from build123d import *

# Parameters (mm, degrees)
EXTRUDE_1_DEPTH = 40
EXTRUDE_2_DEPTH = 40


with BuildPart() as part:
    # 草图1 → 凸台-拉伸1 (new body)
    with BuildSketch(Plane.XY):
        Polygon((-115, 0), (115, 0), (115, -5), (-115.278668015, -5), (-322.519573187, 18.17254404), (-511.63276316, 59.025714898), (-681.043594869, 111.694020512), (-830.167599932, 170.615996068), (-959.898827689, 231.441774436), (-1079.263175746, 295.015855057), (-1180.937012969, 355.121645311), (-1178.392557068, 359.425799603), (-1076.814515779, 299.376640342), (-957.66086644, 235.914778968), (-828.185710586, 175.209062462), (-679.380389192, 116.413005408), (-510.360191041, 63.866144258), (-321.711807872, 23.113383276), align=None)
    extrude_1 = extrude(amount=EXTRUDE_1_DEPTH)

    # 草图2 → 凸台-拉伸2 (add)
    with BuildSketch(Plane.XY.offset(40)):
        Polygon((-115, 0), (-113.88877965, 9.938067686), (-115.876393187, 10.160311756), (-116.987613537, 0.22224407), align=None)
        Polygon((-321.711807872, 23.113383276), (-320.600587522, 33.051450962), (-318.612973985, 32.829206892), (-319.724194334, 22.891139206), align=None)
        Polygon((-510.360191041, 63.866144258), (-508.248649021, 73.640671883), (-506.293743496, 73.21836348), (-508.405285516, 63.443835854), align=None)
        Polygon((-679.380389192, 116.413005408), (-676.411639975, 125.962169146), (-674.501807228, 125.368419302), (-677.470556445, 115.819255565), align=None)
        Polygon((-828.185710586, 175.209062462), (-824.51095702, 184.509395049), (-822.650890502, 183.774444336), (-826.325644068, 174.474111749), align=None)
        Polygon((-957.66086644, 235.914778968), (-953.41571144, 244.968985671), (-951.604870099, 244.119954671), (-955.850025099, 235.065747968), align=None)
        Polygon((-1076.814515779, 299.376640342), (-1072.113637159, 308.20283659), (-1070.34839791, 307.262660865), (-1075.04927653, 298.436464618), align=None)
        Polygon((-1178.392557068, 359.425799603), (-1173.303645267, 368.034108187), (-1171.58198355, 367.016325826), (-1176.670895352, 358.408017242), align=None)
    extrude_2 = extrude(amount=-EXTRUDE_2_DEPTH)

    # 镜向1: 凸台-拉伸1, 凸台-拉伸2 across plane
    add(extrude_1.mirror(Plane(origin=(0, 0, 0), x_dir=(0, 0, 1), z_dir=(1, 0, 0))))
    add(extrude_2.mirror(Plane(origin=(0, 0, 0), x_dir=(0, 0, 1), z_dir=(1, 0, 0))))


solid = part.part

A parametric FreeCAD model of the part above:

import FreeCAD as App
import Part
import Sketcher
from FreeCAD import Vector
Q = App.Units.Quantity

doc = App.newDocument("Part")
params = doc.addObject("Spreadsheet::Sheet", "Params")
for row, (alias, value) in enumerate([
    ("sketch1_width", "230 mm"),
    ("sketch1_height", "5 mm"),
    ("sketch1_length", "208 mm"),
    ("sketch1_length2", "193 mm"),
    ("sketch1_length3", "177 mm"),
    ("pad1_length", "40 mm"),
    ("sketch2_length", "10 mm"),
    ("sketch2_length2", "2 mm"),
    ("pad2_length", "40 mm"),
], start=1):
    params.set(f"A{row}", alias)
    params.set(f"B{row}", "=" + value)
    params.setAlias(f"B{row}", alias)

body = doc.addObject("PartDesign::Body", "Body")

# Sketch on XY plane
sketch1 = body.newObject("Sketcher::SketchObject", "Sketch")
sketch1.AttachmentSupport = (doc.getObject("XY_Plane"), [""])
sketch1.MapMode = "FlatFace"
sketch1.addGeometry(Part.LineSegment(Vector(115, 0, 0), Vector(-115, 0, 0)), False)
sketch1.addGeometry(Part.LineSegment(Vector(-115, 0, 0), Vector(-322, 23, 0)), False)
sketch1.addGeometry(Part.LineSegment(Vector(-322, 23, 0), Vector(-510, 64, 0)), False)
sketch1.addGeometry(Part.LineSegment(Vector(-510, 64, 0), Vector(-679, 116, 0)), False)
sketch1.addGeometry(Part.LineSegment(Vector(-679, 116, 0), Vector(-828, 175, 0)), False)
sketch1.addGeometry(Part.LineSegment(Vector(-828, 175, 0), Vector(-958, 236, 0)), False)
sketch1.addGeometry(Part.LineSegment(Vector(-958, 236, 0), Vector(-1077, 299, 0)), False)
sketch1.addGeometry(Part.LineSegment(Vector(-1077, 299, 0), Vector(-1178, 359, 0)), False)
sketch1.addGeometry(Part.LineSegment(Vector(-1178, 359, 0), Vector(-1181, 355, 0)), False)
sketch1.addGeometry(Part.LineSegment(Vector(-1181, 355, 0), Vector(-1079, 295, 0)), False)
sketch1.addGeometry(Part.LineSegment(Vector(-1079, 295, 0), Vector(-960, 231, 0)), False)
sketch1.addGeometry(Part.LineSegment(Vector(-960, 231, 0), Vector(-830, 171, 0)), False)
sketch1.addGeometry(Part.LineSegment(Vector(-830, 171, 0), Vector(-681, 112, 0)), False)
sketch1.addGeometry(Part.LineSegment(Vector(-681, 112, 0), Vector(-512, 59, 0)), False)
sketch1.addGeometry(Part.LineSegment(Vector(-512, 59, 0), Vector(-323, 18, 0)), False)
sketch1.addGeometry(Part.LineSegment(Vector(-323, 18, 0), Vector(-115, -5, 0)), False)
sketch1.addGeometry(Part.LineSegment(Vector(-115, -5, 0), Vector(115, -5, 0)), False)
sketch1.addGeometry(Part.LineSegment(Vector(115, -5, 0), Vector(115, 0, 0)), False)
sketch1.addConstraint(Sketcher.Constraint("Coincident", 0, 2, 1, 1))
sketch1.addConstraint(Sketcher.Constraint("Coincident", 1, 2, 2, 1))
sketch1.addConstraint(Sketcher.Constraint("Coincident", 2, 2, 3, 1))
sketch1.addConstraint(Sketcher.Constraint("Coincident", 3, 2, 4, 1))
sketch1.addConstraint(Sketcher.Constraint("Coincident", 4, 2, 5, 1))
sketch1.addConstraint(Sketcher.Constraint("Coincident", 5, 2, 6, 1))
sketch1.addConstraint(Sketcher.Constraint("Coincident", 6, 2, 7, 1))
sketch1.addConstraint(Sketcher.Constraint("Coincident", 7, 2, 8, 1))
sketch1.addConstraint(Sketcher.Constraint("Coincident", 8, 2, 9, 1))
sketch1.addConstraint(Sketcher.Constraint("Coincident", 9, 2, 10, 1))
sketch1.addConstraint(Sketcher.Constraint("Coincident", 10, 2, 11, 1))
sketch1.addConstraint(Sketcher.Constraint("Coincident", 11, 2, 12, 1))
sketch1.addConstraint(Sketcher.Constraint("Coincident", 12, 2, 13, 1))
sketch1.addConstraint(Sketcher.Constraint("Coincident", 13, 2, 14, 1))
sketch1.addConstraint(Sketcher.Constraint("Coincident", 14, 2, 15, 1))
sketch1.addConstraint(Sketcher.Constraint("Coincident", 15, 2, 16, 1))
sketch1.addConstraint(Sketcher.Constraint("Coincident", 16, 2, 17, 1))
sketch1.addConstraint(Sketcher.Constraint("Coincident", 17, 2, 0, 1))
sketch1.addConstraint(Sketcher.Constraint("Horizontal", 0))
sketch1.addConstraint(Sketcher.Constraint("Horizontal", 16))
sketch1.addConstraint(Sketcher.Constraint("Vertical", 17))
sketch1.addConstraint(Sketcher.Constraint("Symmetric", 0, 2, 17, 2, -1, 1))
sketch1.addConstraint(Sketcher.Constraint("Perpendicular", 7, 8))
sketch1.addConstraint(Sketcher.Constraint("Perpendicular", 8, 9))
sketch1.addConstraint(Sketcher.Constraint("Parallel", 6, 10))
sketch1.addConstraint(Sketcher.Constraint("Parallel", 5, 11))
sketch1.addConstraint(Sketcher.Constraint("Parallel", 4, 12))
sketch1.addConstraint(Sketcher.Constraint("Parallel", 3, 13))
sketch1.addConstraint(Sketcher.Constraint("Parallel", 2, 14))
sketch1.addConstraint(Sketcher.Constraint("Parallel", 1, 15))
sketch1.addConstraint(Sketcher.Constraint("DistanceX", 0, 2, 0, 1, 230.0))
sketch1.addConstraint(Sketcher.Constraint("DistanceY", 17, 1, 17, 2, 5.0))
sketch1.addConstraint(Sketcher.Constraint("Distance", 1, 208.0))
sketch1.addConstraint(Sketcher.Constraint("Distance", 2, 193.0))
sketch1.addConstraint(Sketcher.Constraint("Distance", 3, 177.0))
sketch1.addConstraint(Sketcher.Constraint("Distance", 4, 160.0))
sketch1.addConstraint(Sketcher.Constraint("Distance", 5, 143.0))
sketch1.addConstraint(Sketcher.Constraint("Distance", 6, 135.0))
sketch1.addConstraint(Sketcher.Constraint("Distance", 7, 118.0))
sketch1.addConstraint(Sketcher.Constraint("Distance", 8, 5.0))
sketch1.addConstraint(Sketcher.Constraint("Angle", 1, Q("173.62 deg")))
sketch1.addConstraint(Sketcher.Constraint("Angle", 2, Q("167.81 deg")))
sketch1.addConstraint(Sketcher.Constraint("Angle", 3, Q("162.73 deg")))
sketch1.addConstraint(Sketcher.Constraint("Angle", 4, Q("158.44 deg")))
sketch1.addConstraint(Sketcher.Constraint("Angle", 5, Q("154.88 deg")))
sketch1.addConstraint(Sketcher.Constraint("Angle", 6, Q("151.96 deg")))
sketch1.addConstraint(Sketcher.Constraint("Angle", 7, Q("149.41 deg")))
sketch1.addConstraint(Sketcher.Constraint("DistanceX", 16, 1, 16, 2, 230.278668))
sketch1.addConstraint(Sketcher.Constraint("DistanceX", 11, 2, -1, 1, 830.1676))
sketch1.addConstraint(Sketcher.Constraint("DistanceY", 14, 2, 2, 2, 45.6936))
sketch1.addConstraint(Sketcher.Constraint("Distance", 10, 135.23872))
sketch1.addConstraint(Sketcher.Constraint("Distance", 11, 143.282821))
sketch1.addConstraint(Sketcher.Constraint("Distance", 12, 160.342658))
sketch1.setExpression("Constraints[30]", "Params.sketch1_width")
sketch1.setExpression("Constraints[31]", "Params.sketch1_height")
sketch1.setExpression("Constraints[32]", "Params.sketch1_length")
sketch1.setExpression("Constraints[33]", "Params.sketch1_length2")
sketch1.setExpression("Constraints[34]", "Params.sketch1_length3")
pad1 = body.newObject("PartDesign::Pad", "Pad")
pad1.Profile = sketch1
pad1.setExpression("Length", "Params.pad1_length")

# Sketch on XY plane
sketch2 = body.newObject("Sketcher::SketchObject", "Sketch001")
sketch2.AttachmentSupport = (doc.getObject("XY_Plane"), [""])
sketch2.MapMode = "FlatFace"
sketch2.AttachmentOffset = App.Placement(Vector(0, 0, 40), App.Rotation())
sketch2.addGeometry(Part.LineSegment(Vector(-115, 0, 0), Vector(-113.9, 9.9, 0)), False)
sketch2.addGeometry(Part.LineSegment(Vector(-113.9, 9.9, 0), Vector(-115.9, 10.2, 0)), False)
sketch2.addGeometry(Part.LineSegment(Vector(-115.9, 10.2, 0), Vector(-117, 0.2, 0)), False)
sketch2.addGeometry(Part.LineSegment(Vector(-117, 0.2, 0), Vector(-115, 0, 0)), False)
sketch2.addGeometry(Part.LineSegment(Vector(-320.6, 33.1, 0), Vector(-321.7, 23.1, 0)), False)
sketch2.addGeometry(Part.LineSegment(Vector(-321.7, 23.1, 0), Vector(-319.7, 22.9, 0)), False)
sketch2.addGeometry(Part.LineSegment(Vector(-319.7, 22.9, 0), Vector(-318.6, 32.8, 0)), False)
sketch2.addGeometry(Part.LineSegment(Vector(-318.6, 32.8, 0), Vector(-320.6, 33.1, 0)), False)
sketch2.addGeometry(Part.LineSegment(Vector(-508.2, 73.6, 0), Vector(-510.4, 63.9, 0)), False)
sketch2.addGeometry(Part.LineSegment(Vector(-510.4, 63.9, 0), Vector(-508.4, 63.4, 0)), False)
sketch2.addGeometry(Part.LineSegment(Vector(-508.4, 63.4, 0), Vector(-506.3, 73.2, 0)), False)
sketch2.addGeometry(Part.LineSegment(Vector(-506.3, 73.2, 0), Vector(-508.2, 73.6, 0)), False)
sketch2.addGeometry(Part.LineSegment(Vector(-676.4, 126, 0), Vector(-679.4, 116.4, 0)), False)
sketch2.addGeometry(Part.LineSegment(Vector(-679.4, 116.4, 0), Vector(-677.5, 115.8, 0)), False)
sketch2.addGeometry(Part.LineSegment(Vector(-677.5, 115.8, 0), Vector(-674.5, 125.4, 0)), False)
sketch2.addGeometry(Part.LineSegment(Vector(-674.5, 125.4, 0), Vector(-676.4, 126, 0)), False)
sketch2.addGeometry(Part.LineSegment(Vector(-824.5, 184.5, 0), Vector(-828.2, 175.2, 0)), False)
sketch2.addGeometry(Part.LineSegment(Vector(-828.2, 175.2, 0), Vector(-826.3, 174.5, 0)), False)
sketch2.addGeometry(Part.LineSegment(Vector(-826.3, 174.5, 0), Vector(-822.7, 183.8, 0)), False)
sketch2.addGeometry(Part.LineSegment(Vector(-822.7, 183.8, 0), Vector(-824.5, 184.5, 0)), False)
sketch2.addGeometry(Part.LineSegment(Vector(-953.4, 245, 0), Vector(-957.7, 235.9, 0)), False)
sketch2.addGeometry(Part.LineSegment(Vector(-957.7, 235.9, 0), Vector(-955.9, 235.1, 0)), False)
sketch2.addGeometry(Part.LineSegment(Vector(-955.9, 235.1, 0), Vector(-951.6, 244.1, 0)), False)
sketch2.addGeometry(Part.LineSegment(Vector(-951.6, 244.1, 0), Vector(-953.4, 245, 0)), False)
sketch2.addGeometry(Part.LineSegment(Vector(-1072.1, 308.2, 0), Vector(-1076.8, 299.4, 0)), False)
sketch2.addGeometry(Part.LineSegment(Vector(-1076.8, 299.4, 0), Vector(-1075, 298.4, 0)), False)
sketch2.addGeometry(Part.LineSegment(Vector(-1075, 298.4, 0), Vector(-1070.3, 307.3, 0)), False)
sketch2.addGeometry(Part.LineSegment(Vector(-1070.3, 307.3, 0), Vector(-1072.1, 308.2, 0)), False)
sketch2.addGeometry(Part.LineSegment(Vector(-1173.3, 368, 0), Vector(-1178.4, 359.4, 0)), False)
sketch2.addGeometry(Part.LineSegment(Vector(-1178.4, 359.4, 0), Vector(-1176.7, 358.4, 0)), False)
sketch2.addGeometry(Part.LineSegment(Vector(-1176.7, 358.4, 0), Vector(-1171.6, 367, 0)), False)
sketch2.addGeometry(Part.LineSegment(Vector(-1171.6, 367, 0), Vector(-1173.3, 368, 0)), False)
sketch2.addConstraint(Sketcher.Constraint("Coincident", 0, 2, 1, 1))
sketch2.addConstraint(Sketcher.Constraint("Coincident", 1, 2, 2, 1))
sketch2.addConstraint(Sketcher.Constraint("Coincident", 2, 2, 3, 1))
sketch2.addConstraint(Sketcher.Constraint("Coincident", 3, 2, 0, 1))
sketch2.addConstraint(Sketcher.Constraint("Coincident", 4, 2, 5, 1))
sketch2.addConstraint(Sketcher.Constraint("Coincident", 5, 2, 6, 1))
sketch2.addConstraint(Sketcher.Constraint("Coincident", 6, 2, 7, 1))
sketch2.addConstraint(Sketcher.Constraint("Coincident", 7, 2, 4, 1))
sketch2.addConstraint(Sketcher.Constraint("Coincident", 8, 2, 9, 1))
sketch2.addConstraint(Sketcher.Constraint("Coincident", 9, 2, 10, 1))
sketch2.addConstraint(Sketcher.Constraint("Coincident", 10, 2, 11, 1))
sketch2.addConstraint(Sketcher.Constraint("Coincident", 11, 2, 8, 1))
sketch2.addConstraint(Sketcher.Constraint("Coincident", 12, 2, 13, 1))
sketch2.addConstraint(Sketcher.Constraint("Coincident", 13, 2, 14, 1))
sketch2.addConstraint(Sketcher.Constraint("Coincident", 14, 2, 15, 1))
sketch2.addConstraint(Sketcher.Constraint("Coincident", 15, 2, 12, 1))
sketch2.addConstraint(Sketcher.Constraint("Coincident", 16, 2, 17, 1))
sketch2.addConstraint(Sketcher.Constraint("Coincident", 17, 2, 18, 1))
sketch2.addConstraint(Sketcher.Constraint("Coincident", 18, 2, 19, 1))
sketch2.addConstraint(Sketcher.Constraint("Coincident", 19, 2, 16, 1))
sketch2.addConstraint(Sketcher.Constraint("Coincident", 20, 2, 21, 1))
sketch2.addConstraint(Sketcher.Constraint("Coincident", 21, 2, 22, 1))
sketch2.addConstraint(Sketcher.Constraint("Coincident", 22, 2, 23, 1))
sketch2.addConstraint(Sketcher.Constraint("Coincident", 23, 2, 20, 1))
sketch2.addConstraint(Sketcher.Constraint("Coincident", 24, 2, 25, 1))
sketch2.addConstraint(Sketcher.Constraint("Coincident", 25, 2, 26, 1))
sketch2.addConstraint(Sketcher.Constraint("Coincident", 26, 2, 27, 1))
sketch2.addConstraint(Sketcher.Constraint("Coincident", 27, 2, 24, 1))
sketch2.addConstraint(Sketcher.Constraint("Coincident", 28, 2, 29, 1))
sketch2.addConstraint(Sketcher.Constraint("Coincident", 29, 2, 30, 1))
sketch2.addConstraint(Sketcher.Constraint("Coincident", 30, 2, 31, 1))
sketch2.addConstraint(Sketcher.Constraint("Coincident", 31, 2, 28, 1))
sketch2.addConstraint(Sketcher.Constraint("PointOnObject", 3, 2, -1))
sketch2.addConstraint(Sketcher.Constraint("Perpendicular", 0, 1))
sketch2.addConstraint(Sketcher.Constraint("Perpendicular", 1, 2))
sketch2.addConstraint(Sketcher.Constraint("Perpendicular", 2, 3))
sketch2.addConstraint(Sketcher.Constraint("Perpendicular", 3, 4))
sketch2.addConstraint(Sketcher.Constraint("Perpendicular", 4, 5))
sketch2.addConstraint(Sketcher.Constraint("Perpendicular", 5, 6))
sketch2.addConstraint(Sketcher.Constraint("Perpendicular", 6, 7))
sketch2.addConstraint(Sketcher.Constraint("Perpendicular", 8, 9))
sketch2.addConstraint(Sketcher.Constraint("Perpendicular", 9, 10))
sketch2.addConstraint(Sketcher.Constraint("Perpendicular", 10, 11))
sketch2.addConstraint(Sketcher.Constraint("Perpendicular", 12, 13))
sketch2.addConstraint(Sketcher.Constraint("Perpendicular", 13, 14))
sketch2.addConstraint(Sketcher.Constraint("Perpendicular", 14, 15))
sketch2.addConstraint(Sketcher.Constraint("Perpendicular", 16, 17))
sketch2.addConstraint(Sketcher.Constraint("Perpendicular", 17, 18))
sketch2.addConstraint(Sketcher.Constraint("Perpendicular", 18, 19))
sketch2.addConstraint(Sketcher.Constraint("Perpendicular", 20, 21))
sketch2.addConstraint(Sketcher.Constraint("Perpendicular", 21, 22))
sketch2.addConstraint(Sketcher.Constraint("Perpendicular", 22, 23))
sketch2.addConstraint(Sketcher.Constraint("Perpendicular", 24, 25))
sketch2.addConstraint(Sketcher.Constraint("Perpendicular", 25, 26))
sketch2.addConstraint(Sketcher.Constraint("Perpendicular", 26, 27))
sketch2.addConstraint(Sketcher.Constraint("Perpendicular", 28, 29))
sketch2.addConstraint(Sketcher.Constraint("Perpendicular", 29, 30))
sketch2.addConstraint(Sketcher.Constraint("Perpendicular", 30, 31))
sketch2.addConstraint(Sketcher.Constraint("Equal", 2, 4))
sketch2.addConstraint(Sketcher.Constraint("Equal", 3, 5))
sketch2.addConstraint(Sketcher.Constraint("Equal", 6, 8))
sketch2.addConstraint(Sketcher.Constraint("Equal", 7, 9))
sketch2.addConstraint(Sketcher.Constraint("Equal", 10, 12))
sketch2.addConstraint(Sketcher.Constraint("Equal", 11, 13))
sketch2.addConstraint(Sketcher.Constraint("Equal", 14, 16))
sketch2.addConstraint(Sketcher.Constraint("Equal", 15, 17))
sketch2.addConstraint(Sketcher.Constraint("Equal", 18, 20))
sketch2.addConstraint(Sketcher.Constraint("Equal", 19, 21))
sketch2.addConstraint(Sketcher.Constraint("Equal", 22, 24))
sketch2.addConstraint(Sketcher.Constraint("Equal", 23, 25))
sketch2.addConstraint(Sketcher.Constraint("Equal", 26, 28))
sketch2.addConstraint(Sketcher.Constraint("Equal", 27, 29))
sketch2.addConstraint(Sketcher.Constraint("Distance", 0, 10.0))
sketch2.addConstraint(Sketcher.Constraint("Distance", 1, 2.0))
sketch2.addConstraint(Sketcher.Constraint("DistanceX", 3, 2, -1, 1, 115.0))
sketch2.addConstraint(Sketcher.Constraint("Angle", 0, Q("83.62 deg")))
sketch2.addConstraint(Sketcher.Constraint("Angle", 8, Q("-102.19 deg")))
sketch2.addConstraint(Sketcher.Constraint("Angle", 12, Q("-107.27 deg")))
sketch2.addConstraint(Sketcher.Constraint("Angle", 16, Q("-111.56 deg")))
sketch2.addConstraint(Sketcher.Constraint("Angle", 20, Q("-115.12 deg")))
sketch2.addConstraint(Sketcher.Constraint("Angle", 24, Q("-118.04 deg")))
sketch2.addConstraint(Sketcher.Constraint("Angle", 28, Q("-120.59 deg")))
sketch2.addConstraint(Sketcher.Constraint("DistanceX", 23, 2, 16, 2, 125.230001))
sketch2.addConstraint(Sketcher.Constraint("DistanceY", -1, 1, 28, 2, 359.4258))
sketch2.addConstraint(Sketcher.Constraint("DistanceX", 5, 2, 1, 2, 203.847801))
sketch2.addConstraint(Sketcher.Constraint("DistanceX", 12, 2, 8, 2, 169.020198))
sketch2.addConstraint(Sketcher.Constraint("DistanceX", 12, 2, 7, 2, 358.779802))
sketch2.addConstraint(Sketcher.Constraint("DistanceX", 18, 2, 12, 2, 143.270501))
sketch2.addConstraint(Sketcher.Constraint("DistanceY", -1, 1, 5, 2, 22.891139))
sketch2.addConstraint(Sketcher.Constraint("DistanceY", -1, 1, 11, 2, 73.640672))
sketch2.addConstraint(Sketcher.Constraint("DistanceY", -1, 1, 14, 2, 125.368419))
sketch2.addConstraint(Sketcher.Constraint("DistanceY", -1, 1, 17, 2, 174.474112))
sketch2.addConstraint(Sketcher.Constraint("DistanceY", -1, 1, 20, 2, 235.914779))
sketch2.addConstraint(Sketcher.Constraint("DistanceY", -1, 1, 24, 2, 299.37664))
sketch2.addConstraint(Sketcher.Constraint("DistanceX", 24, 2, 20, 2, 119.153649))
sketch2.addConstraint(Sketcher.Constraint("DistanceX", 28, 2, 27, 2, 106.27892))
sketch2.setExpression("Constraints[72]", "Params.sketch2_length")
sketch2.setExpression("Constraints[73]", "Params.sketch2_length2")
pad2 = body.newObject("PartDesign::Pad", "Pad001")
pad2.Profile = sketch2
pad2.setExpression("Length", "Params.pad2_length")
pad2.Reversed = True
doc.recompute()

mirrored = body.newObject("PartDesign::Mirrored", "Mirrored")
mirrored.Originals = [pad1, pad2]
mirrored.MirrorPlane = (doc.getObject("YZ_Plane"), [""])
body.Tip = mirrored

doc.recompute()
